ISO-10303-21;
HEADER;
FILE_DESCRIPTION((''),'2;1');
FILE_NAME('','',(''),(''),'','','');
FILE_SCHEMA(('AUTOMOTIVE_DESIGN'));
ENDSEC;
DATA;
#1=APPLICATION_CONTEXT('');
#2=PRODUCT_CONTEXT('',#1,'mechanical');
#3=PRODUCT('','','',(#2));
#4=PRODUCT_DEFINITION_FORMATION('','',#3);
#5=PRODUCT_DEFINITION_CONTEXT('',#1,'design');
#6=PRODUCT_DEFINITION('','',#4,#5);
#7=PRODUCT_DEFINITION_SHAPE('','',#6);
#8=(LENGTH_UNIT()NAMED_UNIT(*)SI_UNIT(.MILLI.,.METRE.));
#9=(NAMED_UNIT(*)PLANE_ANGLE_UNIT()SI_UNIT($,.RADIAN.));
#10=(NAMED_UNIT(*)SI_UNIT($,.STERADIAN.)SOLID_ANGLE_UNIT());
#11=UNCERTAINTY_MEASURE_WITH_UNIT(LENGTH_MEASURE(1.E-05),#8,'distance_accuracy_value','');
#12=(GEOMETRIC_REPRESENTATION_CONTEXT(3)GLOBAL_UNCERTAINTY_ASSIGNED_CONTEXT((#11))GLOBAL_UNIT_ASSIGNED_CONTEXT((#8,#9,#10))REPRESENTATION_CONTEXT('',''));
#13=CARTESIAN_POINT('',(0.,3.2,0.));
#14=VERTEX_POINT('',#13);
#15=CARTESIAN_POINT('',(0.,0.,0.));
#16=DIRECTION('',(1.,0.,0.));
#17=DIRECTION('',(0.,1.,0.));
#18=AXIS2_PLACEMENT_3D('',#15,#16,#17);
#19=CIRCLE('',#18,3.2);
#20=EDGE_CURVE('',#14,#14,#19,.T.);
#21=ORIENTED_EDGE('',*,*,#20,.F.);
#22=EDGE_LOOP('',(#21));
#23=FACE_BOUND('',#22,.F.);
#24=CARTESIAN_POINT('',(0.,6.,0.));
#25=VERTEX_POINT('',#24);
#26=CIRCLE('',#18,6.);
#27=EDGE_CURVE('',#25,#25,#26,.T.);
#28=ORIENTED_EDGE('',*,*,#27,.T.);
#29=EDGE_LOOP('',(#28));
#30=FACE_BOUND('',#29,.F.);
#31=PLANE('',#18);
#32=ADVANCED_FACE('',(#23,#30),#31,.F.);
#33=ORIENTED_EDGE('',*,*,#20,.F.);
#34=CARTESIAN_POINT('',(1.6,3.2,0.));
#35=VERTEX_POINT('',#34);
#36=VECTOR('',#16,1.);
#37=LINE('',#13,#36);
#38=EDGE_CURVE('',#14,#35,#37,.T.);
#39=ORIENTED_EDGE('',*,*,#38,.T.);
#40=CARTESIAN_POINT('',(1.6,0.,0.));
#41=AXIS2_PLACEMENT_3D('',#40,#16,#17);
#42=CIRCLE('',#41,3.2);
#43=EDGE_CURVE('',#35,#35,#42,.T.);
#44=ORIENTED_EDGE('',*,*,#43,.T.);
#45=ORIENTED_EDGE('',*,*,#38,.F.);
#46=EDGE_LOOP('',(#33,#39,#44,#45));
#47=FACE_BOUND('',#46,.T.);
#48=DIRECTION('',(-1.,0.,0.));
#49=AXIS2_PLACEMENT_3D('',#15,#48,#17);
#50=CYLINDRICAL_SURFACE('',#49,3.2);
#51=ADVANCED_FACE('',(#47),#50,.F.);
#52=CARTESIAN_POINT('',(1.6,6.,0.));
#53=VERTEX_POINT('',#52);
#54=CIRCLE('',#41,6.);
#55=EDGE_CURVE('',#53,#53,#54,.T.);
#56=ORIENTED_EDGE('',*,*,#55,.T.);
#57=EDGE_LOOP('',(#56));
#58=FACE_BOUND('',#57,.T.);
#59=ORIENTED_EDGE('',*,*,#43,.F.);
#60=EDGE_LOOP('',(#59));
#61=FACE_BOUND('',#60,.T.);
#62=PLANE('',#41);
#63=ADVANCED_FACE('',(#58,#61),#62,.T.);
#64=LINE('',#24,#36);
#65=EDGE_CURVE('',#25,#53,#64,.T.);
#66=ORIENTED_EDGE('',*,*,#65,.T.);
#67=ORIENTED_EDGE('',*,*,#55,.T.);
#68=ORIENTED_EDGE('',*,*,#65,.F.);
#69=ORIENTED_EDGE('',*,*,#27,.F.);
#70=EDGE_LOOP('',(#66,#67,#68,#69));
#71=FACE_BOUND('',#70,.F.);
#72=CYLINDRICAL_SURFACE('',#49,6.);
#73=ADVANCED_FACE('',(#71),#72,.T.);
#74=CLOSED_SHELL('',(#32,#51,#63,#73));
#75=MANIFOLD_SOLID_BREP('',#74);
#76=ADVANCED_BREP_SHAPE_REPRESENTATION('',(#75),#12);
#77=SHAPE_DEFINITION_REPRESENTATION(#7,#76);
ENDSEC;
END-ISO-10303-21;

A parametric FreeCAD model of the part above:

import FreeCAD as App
import Part
import Sketcher

doc = App.newDocument("Part")
body = doc.addObject("PartDesign::Body", "Body")

# Sketch on YZ plane
sketch1 = doc.addObject("Sketcher::SketchObject", "Sketch")
body.addObject(sketch1)
sketch1.AttachmentSupport = (doc.YZ_Plane, [""])
sketch1.MapMode = "FlatFace"
sketch1.addGeometry([
    Part.Circle(App.Vector(0, 0, 0), App.Vector(0, 0, 1), 6),
    Part.Circle(App.Vector(0, 0, 0), App.Vector(0, 0, 1), 3.2),
], False)
sketch1.addConstraint([
    Sketcher.Constraint("Coincident", 0, 3, -1, 1),
    Sketcher.Constraint("Coincident", 1, 3, -1, 1),
    Sketcher.Constraint("Diameter", 0, 12.0),
    Sketcher.Constraint("Diameter", 1, 6.4),
])
pad1 = doc.addObject("PartDesign::Pad", "Pad")
body.addObject(pad1)
pad1.Profile = sketch1
pad1.Length = 1.6

doc.recompute()
